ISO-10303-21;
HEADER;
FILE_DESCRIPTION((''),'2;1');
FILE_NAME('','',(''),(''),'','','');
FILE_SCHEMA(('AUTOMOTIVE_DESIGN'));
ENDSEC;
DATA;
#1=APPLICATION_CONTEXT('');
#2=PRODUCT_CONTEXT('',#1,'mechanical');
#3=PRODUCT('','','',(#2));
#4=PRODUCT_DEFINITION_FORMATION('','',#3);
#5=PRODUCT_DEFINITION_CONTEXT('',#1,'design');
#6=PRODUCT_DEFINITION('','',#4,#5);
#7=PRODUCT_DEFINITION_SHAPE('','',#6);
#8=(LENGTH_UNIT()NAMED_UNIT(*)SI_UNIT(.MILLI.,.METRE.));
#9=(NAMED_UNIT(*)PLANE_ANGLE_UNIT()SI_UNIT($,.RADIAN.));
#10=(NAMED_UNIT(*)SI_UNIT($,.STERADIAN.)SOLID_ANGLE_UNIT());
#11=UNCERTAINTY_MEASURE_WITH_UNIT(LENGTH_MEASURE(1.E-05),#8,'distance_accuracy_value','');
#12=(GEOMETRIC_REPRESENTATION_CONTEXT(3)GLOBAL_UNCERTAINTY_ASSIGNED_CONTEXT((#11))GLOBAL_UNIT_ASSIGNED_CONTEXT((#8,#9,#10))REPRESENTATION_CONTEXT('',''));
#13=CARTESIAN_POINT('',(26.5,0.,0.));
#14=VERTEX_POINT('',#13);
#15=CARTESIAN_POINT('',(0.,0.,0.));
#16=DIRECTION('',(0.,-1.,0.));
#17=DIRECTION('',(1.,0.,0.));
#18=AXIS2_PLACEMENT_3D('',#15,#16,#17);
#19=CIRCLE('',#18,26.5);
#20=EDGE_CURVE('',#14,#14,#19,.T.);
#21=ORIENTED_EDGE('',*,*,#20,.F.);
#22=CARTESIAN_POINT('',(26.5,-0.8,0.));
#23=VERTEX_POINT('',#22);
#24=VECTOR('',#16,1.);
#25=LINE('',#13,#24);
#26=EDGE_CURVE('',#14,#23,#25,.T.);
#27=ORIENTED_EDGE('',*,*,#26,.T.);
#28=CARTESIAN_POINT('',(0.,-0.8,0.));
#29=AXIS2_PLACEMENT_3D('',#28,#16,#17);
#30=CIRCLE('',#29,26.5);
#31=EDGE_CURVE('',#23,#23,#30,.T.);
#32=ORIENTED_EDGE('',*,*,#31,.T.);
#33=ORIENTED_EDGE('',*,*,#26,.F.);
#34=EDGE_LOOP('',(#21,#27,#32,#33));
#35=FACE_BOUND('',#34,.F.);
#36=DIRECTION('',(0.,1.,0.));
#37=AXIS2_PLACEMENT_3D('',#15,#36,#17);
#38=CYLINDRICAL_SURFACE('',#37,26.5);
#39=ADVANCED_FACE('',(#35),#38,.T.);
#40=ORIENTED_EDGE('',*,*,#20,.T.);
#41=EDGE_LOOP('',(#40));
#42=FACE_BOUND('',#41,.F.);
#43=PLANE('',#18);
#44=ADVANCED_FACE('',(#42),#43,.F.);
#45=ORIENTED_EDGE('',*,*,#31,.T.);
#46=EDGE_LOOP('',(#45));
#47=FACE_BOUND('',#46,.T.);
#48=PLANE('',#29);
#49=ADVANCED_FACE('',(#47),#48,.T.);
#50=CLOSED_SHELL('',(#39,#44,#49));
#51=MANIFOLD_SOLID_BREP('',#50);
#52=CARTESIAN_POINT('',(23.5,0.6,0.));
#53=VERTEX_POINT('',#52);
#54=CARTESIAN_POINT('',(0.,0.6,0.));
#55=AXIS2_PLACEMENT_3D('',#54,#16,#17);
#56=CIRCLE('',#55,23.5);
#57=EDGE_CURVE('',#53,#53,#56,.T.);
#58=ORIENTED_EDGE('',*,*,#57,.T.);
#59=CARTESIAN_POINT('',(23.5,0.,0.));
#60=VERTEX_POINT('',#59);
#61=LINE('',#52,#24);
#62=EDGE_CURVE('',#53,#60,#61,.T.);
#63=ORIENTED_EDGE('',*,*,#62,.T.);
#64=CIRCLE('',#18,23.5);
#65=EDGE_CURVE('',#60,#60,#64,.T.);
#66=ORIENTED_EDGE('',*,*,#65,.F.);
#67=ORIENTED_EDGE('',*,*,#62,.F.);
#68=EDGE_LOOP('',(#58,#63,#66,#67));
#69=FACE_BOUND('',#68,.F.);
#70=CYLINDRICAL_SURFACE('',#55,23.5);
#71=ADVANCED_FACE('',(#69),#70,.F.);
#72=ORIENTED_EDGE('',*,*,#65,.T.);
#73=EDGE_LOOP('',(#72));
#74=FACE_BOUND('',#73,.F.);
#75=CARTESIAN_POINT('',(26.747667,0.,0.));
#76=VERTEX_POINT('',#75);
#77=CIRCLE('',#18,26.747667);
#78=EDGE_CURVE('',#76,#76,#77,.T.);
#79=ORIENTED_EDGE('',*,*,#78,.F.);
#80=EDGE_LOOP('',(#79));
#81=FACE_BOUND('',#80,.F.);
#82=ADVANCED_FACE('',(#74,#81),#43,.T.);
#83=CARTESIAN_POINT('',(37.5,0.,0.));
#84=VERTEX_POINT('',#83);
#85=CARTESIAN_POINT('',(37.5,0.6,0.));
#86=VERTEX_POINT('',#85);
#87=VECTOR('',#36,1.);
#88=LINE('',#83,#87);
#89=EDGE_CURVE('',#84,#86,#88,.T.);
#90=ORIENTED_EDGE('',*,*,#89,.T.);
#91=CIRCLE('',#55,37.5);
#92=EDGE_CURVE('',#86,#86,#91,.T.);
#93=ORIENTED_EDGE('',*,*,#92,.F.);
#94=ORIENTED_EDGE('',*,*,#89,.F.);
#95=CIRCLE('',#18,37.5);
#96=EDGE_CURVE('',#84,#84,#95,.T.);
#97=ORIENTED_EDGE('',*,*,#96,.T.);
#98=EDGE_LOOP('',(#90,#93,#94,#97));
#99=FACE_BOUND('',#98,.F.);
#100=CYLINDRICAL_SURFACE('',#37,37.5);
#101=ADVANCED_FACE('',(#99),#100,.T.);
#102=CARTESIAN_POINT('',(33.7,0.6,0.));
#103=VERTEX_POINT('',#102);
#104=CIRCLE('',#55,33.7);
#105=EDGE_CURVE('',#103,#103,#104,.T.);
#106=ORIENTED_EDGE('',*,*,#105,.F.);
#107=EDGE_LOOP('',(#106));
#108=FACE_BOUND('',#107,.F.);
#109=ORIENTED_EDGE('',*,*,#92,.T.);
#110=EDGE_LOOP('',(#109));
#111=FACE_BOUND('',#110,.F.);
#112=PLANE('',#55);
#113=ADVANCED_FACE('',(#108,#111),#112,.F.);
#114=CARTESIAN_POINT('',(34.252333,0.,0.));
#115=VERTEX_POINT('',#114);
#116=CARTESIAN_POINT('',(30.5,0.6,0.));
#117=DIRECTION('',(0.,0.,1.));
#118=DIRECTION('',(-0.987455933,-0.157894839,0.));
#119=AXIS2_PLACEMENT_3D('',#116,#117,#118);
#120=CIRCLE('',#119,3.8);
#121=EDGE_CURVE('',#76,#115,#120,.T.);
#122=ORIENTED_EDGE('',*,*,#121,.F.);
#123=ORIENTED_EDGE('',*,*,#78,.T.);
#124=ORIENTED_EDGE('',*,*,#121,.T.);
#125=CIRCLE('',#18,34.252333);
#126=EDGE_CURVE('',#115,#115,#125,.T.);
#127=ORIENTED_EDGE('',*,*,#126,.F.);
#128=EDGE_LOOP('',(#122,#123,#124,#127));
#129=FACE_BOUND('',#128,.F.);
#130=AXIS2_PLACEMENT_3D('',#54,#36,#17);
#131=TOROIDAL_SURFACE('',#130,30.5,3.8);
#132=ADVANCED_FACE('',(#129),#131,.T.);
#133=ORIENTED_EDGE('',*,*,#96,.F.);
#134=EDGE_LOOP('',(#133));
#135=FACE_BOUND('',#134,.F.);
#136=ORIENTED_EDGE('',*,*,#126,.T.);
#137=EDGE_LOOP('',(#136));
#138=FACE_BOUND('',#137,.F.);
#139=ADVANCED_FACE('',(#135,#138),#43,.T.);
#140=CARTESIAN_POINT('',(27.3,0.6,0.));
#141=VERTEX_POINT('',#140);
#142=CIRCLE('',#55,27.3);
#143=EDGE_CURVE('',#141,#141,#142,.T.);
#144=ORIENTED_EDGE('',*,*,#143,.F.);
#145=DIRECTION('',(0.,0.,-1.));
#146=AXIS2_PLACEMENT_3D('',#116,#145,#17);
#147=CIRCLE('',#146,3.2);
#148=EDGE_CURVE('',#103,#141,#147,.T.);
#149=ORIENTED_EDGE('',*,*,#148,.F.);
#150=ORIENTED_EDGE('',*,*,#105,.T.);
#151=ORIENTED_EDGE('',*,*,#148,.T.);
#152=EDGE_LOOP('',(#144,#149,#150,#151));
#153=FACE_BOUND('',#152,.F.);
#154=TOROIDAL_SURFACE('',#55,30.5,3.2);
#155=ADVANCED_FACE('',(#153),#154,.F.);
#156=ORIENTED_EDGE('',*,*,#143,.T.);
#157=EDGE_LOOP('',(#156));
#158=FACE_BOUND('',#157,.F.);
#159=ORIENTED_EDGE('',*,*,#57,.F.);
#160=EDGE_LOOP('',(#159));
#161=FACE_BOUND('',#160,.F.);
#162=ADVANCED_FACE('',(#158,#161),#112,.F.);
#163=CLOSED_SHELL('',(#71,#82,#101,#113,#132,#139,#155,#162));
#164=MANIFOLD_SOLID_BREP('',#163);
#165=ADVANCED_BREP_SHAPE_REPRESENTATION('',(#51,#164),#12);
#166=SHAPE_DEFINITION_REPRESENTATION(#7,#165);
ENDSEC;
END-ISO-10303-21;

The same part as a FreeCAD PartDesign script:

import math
import FreeCAD as App
import Part
import Sketcher
from FreeCAD import Vector
Q = App.Units.Quantity

doc = App.newDocument("Part")
params = doc.addObject("Spreadsheet::Sheet", "Params")
for row, (alias, value) in enumerate([
    ("sketch1_diameter", "53 mm"),
    ("pad1_length", "0.8 mm"),
    ("sketch2_radius", "3.8 mm"),
    ("sketch2_radius2", "3.2 mm"),
    ("sketch2_width", "3.8 mm"),
    ("sketch2_height", "0.6 mm"),
    ("revolution_angle", "360 deg"),
], start=1):
    params.set(f"A{row}", alias)
    params.set(f"B{row}", "=" + value)
    params.setAlias(f"B{row}", alias)

body = doc.addObject("PartDesign::Body", "Body")

# Sketch on XZ plane
sketch1 = body.newObject("Sketcher::SketchObject", "Sketch")
sketch1.AttachmentSupport = (doc.getObject("XZ_Plane"), [""])
sketch1.MapMode = "FlatFace"
sketch1.addGeometry(Part.Circle(Vector(0, 0, 0), Vector(0, 0, 1), 26), False)
sketch1.addConstraint(Sketcher.Constraint("Coincident", 0, 3, -1, 1))
sketch1.addConstraint(Sketcher.Constraint("Diameter", 0, Q("53 mm")))
sketch1.setExpression("Constraints[1]", "Params.sketch1_diameter")
pad1 = body.newObject("PartDesign::Pad", "Pad")
pad1.Profile = sketch1
pad1.setExpression("Length", "Params.pad1_length")
body2 = doc.addObject("PartDesign::Body", "Body001")

# Sketch on XY plane
sketch2 = body2.newObject("Sketcher::SketchObject", "Sketch001")
sketch2.AttachmentSupport = (doc.getObject("XY_Plane001"), [""])
sketch2.MapMode = "FlatFace"
sketch2.addGeometry(Part.LineSegment(Vector(23.5, 0.6, 0), Vector(23.5, 0, 0)), False)
sketch2.addGeometry(Part.LineSegment(Vector(23.5, 0, 0), Vector(26.7, 0, 0)), False)
sketch2.addGeometry(Part.ArcOfCircle(Part.Circle(Vector(30.5, 0.6, 0), Vector(0, 0, 1), 3.8), math.radians(-171), math.radians(-9)), False)
sketch2.addGeometry(Part.LineSegment(Vector(34.3, 0, 0), Vector(37.5, 0, 0)), False)
sketch2.addGeometry(Part.LineSegment(Vector(37.5, 0, 0), Vector(37.5, 0.6, 0)), False)
sketch2.addGeometry(Part.LineSegment(Vector(37.5, 0.6, 0), Vector(33.7, 0.6, 0)), False)
sketch2.addGeometry(Part.ArcOfCircle(Part.Circle(Vector(30.5, 0.6, 0), Vector(0, 0, 1), 3.2), math.radians(180), math.radians(360)), False)
sketch2.addGeometry(Part.LineSegment(Vector(27.3, 0.6, 0), Vector(23.5, 0.6, 0)), False)
sketch2.addConstraint(Sketcher.Constraint("Coincident", 0, 2, 1, 1))
sketch2.addConstraint(Sketcher.Constraint("Coincident", 1, 2, 2, 1))
sketch2.addConstraint(Sketcher.Constraint("Coincident", 2, 2, 3, 1))
sketch2.addConstraint(Sketcher.Constraint("Coincident", 3, 2, 4, 1))
sketch2.addConstraint(Sketcher.Constraint("Coincident", 4, 2, 5, 1))
sketch2.addConstraint(Sketcher.Constraint("Coincident", 5, 2, 6, 2))
sketch2.addConstraint(Sketcher.Constraint("Coincident", 6, 1, 7, 1))
sketch2.addConstraint(Sketcher.Constraint("Coincident", 7, 2, 0, 1))
sketch2.addConstraint(Sketcher.Constraint("Vertical", 0))
sketch2.addConstraint(Sketcher.Constraint("Horizontal", 1))
sketch2.addConstraint(Sketcher.Constraint("Horizontal", 3))
sketch2.addConstraint(Sketcher.Constraint("Vertical", 4))
sketch2.addConstraint(Sketcher.Constraint("Horizontal", 5))
sketch2.addConstraint(Sketcher.Constraint("Horizontal", 7))
sketch2.addConstraint(Sketcher.Constraint("Coincident", 6, 3, 2, 3))
sketch2.addConstraint(Sketcher.Constraint("PointOnObject", 0, 2, -1))
sketch2.addConstraint(Sketcher.Constraint("PointOnObject", 2, 2, -1))
sketch2.addConstraint(Sketcher.Constraint("Horizontal", 6, 3, 4, 2))
sketch2.addConstraint(Sketcher.Constraint("Horizontal", 5, 2, 6, 1))
sketch2.addConstraint(Sketcher.Constraint("Equal", 1, 3))
sketch2.addConstraint(Sketcher.Constraint("Radius", 2, Q("3.8 mm")))
sketch2.addConstraint(Sketcher.Constraint("Radius", 6, Q("3.2 mm")))
sketch2.addConstraint(Sketcher.Constraint("DistanceX", 5, 2, 5, 1, Q("3.8 mm")))
sketch2.addConstraint(Sketcher.Constraint("DistanceY", 0, 2, 0, 1, Q("0.6 mm")))
sketch2.addConstraint(Sketcher.Constraint("DistanceX", -1, 1, 2, 3, Q("30.5 mm")))
sketch2.setExpression("Constraints[20]", "Params.sketch2_radius")
sketch2.setExpression("Constraints[21]", "Params.sketch2_radius2")
sketch2.setExpression("Constraints[22]", "Params.sketch2_width")
sketch2.setExpression("Constraints[23]", "Params.sketch2_height")
revolution = body2.newObject("PartDesign::Revolution", "Revolution")
revolution.Profile = sketch2
revolution.ReferenceAxis = (sketch2, ["V_Axis"])
revolution.setExpression("Angle", "Params.revolution_angle")

doc.recompute()
